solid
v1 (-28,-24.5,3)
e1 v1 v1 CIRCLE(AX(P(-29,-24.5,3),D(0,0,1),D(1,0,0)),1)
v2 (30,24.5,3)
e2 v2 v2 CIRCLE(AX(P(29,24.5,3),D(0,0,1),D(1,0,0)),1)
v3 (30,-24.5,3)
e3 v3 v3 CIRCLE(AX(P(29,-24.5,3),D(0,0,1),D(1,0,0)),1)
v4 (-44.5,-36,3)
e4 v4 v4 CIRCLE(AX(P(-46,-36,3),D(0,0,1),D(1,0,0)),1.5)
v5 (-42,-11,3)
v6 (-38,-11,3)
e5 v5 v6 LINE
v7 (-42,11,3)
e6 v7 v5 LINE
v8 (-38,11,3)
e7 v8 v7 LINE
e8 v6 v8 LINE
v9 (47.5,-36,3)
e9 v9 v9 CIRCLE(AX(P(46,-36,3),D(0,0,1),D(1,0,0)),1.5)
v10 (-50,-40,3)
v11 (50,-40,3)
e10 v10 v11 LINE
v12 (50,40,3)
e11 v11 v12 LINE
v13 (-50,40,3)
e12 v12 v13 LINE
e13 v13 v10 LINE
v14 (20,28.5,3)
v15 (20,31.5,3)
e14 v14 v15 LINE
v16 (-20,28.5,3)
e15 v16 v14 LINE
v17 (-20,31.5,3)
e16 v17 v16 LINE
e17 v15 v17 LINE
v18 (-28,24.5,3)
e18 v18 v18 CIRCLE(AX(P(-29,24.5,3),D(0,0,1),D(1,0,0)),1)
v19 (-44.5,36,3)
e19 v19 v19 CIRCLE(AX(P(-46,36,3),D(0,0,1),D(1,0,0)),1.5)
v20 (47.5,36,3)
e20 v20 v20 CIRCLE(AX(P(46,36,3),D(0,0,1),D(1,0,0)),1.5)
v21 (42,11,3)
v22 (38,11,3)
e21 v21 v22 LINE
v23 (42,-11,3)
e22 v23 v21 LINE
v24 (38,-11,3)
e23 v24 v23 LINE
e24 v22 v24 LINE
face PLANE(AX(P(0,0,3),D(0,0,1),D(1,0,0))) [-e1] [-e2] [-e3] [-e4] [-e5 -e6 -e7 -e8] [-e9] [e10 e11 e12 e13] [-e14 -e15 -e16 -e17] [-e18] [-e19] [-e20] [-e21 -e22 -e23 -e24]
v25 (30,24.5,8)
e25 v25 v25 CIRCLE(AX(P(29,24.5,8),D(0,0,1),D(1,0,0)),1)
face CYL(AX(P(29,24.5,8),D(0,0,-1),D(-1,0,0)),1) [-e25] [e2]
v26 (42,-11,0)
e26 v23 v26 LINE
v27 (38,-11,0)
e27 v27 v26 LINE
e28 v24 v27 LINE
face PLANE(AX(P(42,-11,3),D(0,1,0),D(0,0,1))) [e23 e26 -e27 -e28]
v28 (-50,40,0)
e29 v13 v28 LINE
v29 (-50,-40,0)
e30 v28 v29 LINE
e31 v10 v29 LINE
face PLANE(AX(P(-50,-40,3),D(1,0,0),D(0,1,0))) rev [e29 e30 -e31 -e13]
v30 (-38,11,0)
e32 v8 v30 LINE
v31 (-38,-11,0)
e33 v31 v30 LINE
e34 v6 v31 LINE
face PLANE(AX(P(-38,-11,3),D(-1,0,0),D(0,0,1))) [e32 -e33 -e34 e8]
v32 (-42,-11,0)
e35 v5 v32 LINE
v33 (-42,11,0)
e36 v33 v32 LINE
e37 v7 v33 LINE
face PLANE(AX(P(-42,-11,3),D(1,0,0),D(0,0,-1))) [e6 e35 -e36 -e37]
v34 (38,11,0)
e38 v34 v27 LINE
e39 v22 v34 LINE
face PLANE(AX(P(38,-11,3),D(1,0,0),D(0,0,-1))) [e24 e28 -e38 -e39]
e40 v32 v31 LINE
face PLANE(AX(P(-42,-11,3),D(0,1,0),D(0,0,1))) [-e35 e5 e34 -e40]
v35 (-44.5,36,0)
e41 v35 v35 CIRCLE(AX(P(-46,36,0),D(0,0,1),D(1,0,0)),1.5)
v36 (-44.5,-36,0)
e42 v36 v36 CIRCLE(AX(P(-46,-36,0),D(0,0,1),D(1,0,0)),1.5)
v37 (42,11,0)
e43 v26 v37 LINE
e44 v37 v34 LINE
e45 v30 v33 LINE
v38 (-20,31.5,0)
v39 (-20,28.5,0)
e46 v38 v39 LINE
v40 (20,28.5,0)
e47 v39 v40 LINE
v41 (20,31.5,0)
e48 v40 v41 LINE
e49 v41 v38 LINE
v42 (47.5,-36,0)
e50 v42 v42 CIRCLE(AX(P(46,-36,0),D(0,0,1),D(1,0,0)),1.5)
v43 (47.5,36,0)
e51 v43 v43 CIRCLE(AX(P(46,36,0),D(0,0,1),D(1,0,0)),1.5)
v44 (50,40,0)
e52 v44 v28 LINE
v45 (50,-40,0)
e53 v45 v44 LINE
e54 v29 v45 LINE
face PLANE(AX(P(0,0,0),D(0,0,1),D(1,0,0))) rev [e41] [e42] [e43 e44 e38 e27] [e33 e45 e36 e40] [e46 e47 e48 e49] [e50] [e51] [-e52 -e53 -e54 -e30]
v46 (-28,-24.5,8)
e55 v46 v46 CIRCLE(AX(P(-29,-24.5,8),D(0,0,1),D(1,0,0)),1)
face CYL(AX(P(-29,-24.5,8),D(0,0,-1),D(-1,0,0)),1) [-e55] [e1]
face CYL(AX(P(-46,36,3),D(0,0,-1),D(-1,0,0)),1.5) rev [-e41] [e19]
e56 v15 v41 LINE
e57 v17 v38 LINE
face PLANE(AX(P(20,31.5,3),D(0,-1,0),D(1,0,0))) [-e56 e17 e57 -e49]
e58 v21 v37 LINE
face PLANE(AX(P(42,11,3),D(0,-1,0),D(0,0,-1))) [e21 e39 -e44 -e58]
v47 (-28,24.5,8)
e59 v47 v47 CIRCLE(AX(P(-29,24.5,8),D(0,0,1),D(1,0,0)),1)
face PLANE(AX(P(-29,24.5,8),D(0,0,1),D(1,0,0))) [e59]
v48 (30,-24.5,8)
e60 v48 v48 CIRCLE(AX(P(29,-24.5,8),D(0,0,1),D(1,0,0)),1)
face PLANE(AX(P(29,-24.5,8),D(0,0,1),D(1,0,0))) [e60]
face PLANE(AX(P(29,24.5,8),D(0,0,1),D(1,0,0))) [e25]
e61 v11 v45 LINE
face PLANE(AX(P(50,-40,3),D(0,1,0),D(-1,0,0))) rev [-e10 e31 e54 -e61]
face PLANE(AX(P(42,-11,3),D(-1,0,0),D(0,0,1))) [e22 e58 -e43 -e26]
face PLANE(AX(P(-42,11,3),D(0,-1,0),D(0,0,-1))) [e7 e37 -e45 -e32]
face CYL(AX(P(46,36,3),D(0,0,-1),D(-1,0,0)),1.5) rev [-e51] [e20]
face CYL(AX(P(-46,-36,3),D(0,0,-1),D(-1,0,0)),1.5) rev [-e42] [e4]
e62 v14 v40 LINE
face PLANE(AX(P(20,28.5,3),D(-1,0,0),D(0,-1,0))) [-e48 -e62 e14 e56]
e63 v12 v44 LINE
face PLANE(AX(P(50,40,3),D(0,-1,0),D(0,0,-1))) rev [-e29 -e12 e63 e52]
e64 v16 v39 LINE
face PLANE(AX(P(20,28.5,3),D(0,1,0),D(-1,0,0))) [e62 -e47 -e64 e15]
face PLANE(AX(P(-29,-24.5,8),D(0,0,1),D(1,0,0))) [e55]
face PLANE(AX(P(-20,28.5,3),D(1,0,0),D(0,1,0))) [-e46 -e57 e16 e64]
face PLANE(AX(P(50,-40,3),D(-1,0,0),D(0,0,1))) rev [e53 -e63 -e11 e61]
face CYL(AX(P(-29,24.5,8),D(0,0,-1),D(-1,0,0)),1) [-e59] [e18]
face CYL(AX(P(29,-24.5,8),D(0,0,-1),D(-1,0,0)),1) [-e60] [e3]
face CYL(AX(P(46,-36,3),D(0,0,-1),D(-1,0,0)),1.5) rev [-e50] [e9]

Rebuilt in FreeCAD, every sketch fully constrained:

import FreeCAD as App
import Part
import Sketcher
from FreeCAD import Vector

doc = App.newDocument("Part")
params = doc.addObject("Spreadsheet::Sheet", "Params")
for row, (alias, value) in enumerate([
    ("sketch1_diameter", "3 mm"),
    ("sketch1_width", "100 mm"),
    ("sketch1_width2", "4 mm"),
    ("sketch1_width3", "40 mm"),
    ("sketch1_height", "80 mm"),
    ("pad1_length", "3 mm"),
    ("sketch2_diameter", "2 mm"),
    ("pad2_length", "5 mm"),
], start=1):
    params.set(f"A{row}", alias)
    params.set(f"B{row}", "=" + value)
    params.setAlias(f"B{row}", alias)

body = doc.addObject("PartDesign::Body", "Body")

sketch1 = body.newObject("Sketcher::SketchObject", "Sketch")
sketch1.AttachmentSupport = (doc.getObject("XY_Plane"), [""])
sketch1.MapMode = "FlatFace"
sketch1.addGeometry(Part.LineSegment(Vector(-50, 40, 0), Vector(-50, -40, 0)), False)
sketch1.addGeometry(Part.LineSegment(Vector(-50, -40, 0), Vector(50, -40, 0)), False)
sketch1.addGeometry(Part.LineSegment(Vector(50, -40, 0), Vector(50, 40, 0)), False)
sketch1.addGeometry(Part.LineSegment(Vector(50, 40, 0), Vector(-50, 40, 0)), False)
sketch1.addGeometry(Part.Circle(Vector(-46, -36, 0), Vector(0, 0, 1), 1.5), False)
sketch1.addGeometry(Part.Circle(Vector(46, -36, 0), Vector(0, 0, 1), 1.5), False)
sketch1.addGeometry(Part.LineSegment(Vector(-38, -11, 0), Vector(-42, -11, 0)), False)
sketch1.addGeometry(Part.LineSegment(Vector(-42, -11, 0), Vector(-42, 11, 0)), False)
sketch1.addGeometry(Part.LineSegment(Vector(-42, 11, 0), Vector(-38, 11, 0)), False)
sketch1.addGeometry(Part.LineSegment(Vector(-38, 11, 0), Vector(-38, -11, 0)), False)
sketch1.addGeometry(Part.Circle(Vector(-46, 36, 0), Vector(0, 0, 1), 1.5), False)
sketch1.addGeometry(Part.LineSegment(Vector(42, -11, 0), Vector(38, -11, 0)), False)
sketch1.addGeometry(Part.LineSegment(Vector(38, -11, 0), Vector(38, 11, 0)), False)
sketch1.addGeometry(Part.LineSegment(Vector(38, 11, 0), Vector(42, 11, 0)), False)
sketch1.addGeometry(Part.LineSegment(Vector(42, 11, 0), Vector(42, -11, 0)), False)
sketch1.addGeometry(Part.LineSegment(Vector(20, 28.5, 0), Vector(-20, 28.5, 0)), False)
sketch1.addGeometry(Part.LineSegment(Vector(-20, 28.5, 0), Vector(-20, 31.5, 0)), False)
sketch1.addGeometry(Part.LineSegment(Vector(-20, 31.5, 0), Vector(20, 31.5, 0)), False)
sketch1.addGeometry(Part.LineSegment(Vector(20, 31.5, 0), Vector(20, 28.5, 0)), False)
sketch1.addGeometry(Part.Circle(Vector(46, 36, 0), Vector(0, 0, 1), 1.5), False)
sketch1.addConstraint(Sketcher.Constraint("Coincident", 0, 2, 1, 1))
sketch1.addConstraint(Sketcher.Constraint("Coincident", 1, 2, 2, 1))
sketch1.addConstraint(Sketcher.Constraint("Coincident", 2, 2, 3, 1))
sketch1.addConstraint(Sketcher.Constraint("Coincident", 3, 2, 0, 1))
sketch1.addConstraint(Sketcher.Constraint("Coincident", 6, 2, 7, 1))
sketch1.addConstraint(Sketcher.Constraint("Coincident", 7, 2, 8, 1))
sketch1.addConstraint(Sketcher.Constraint("Coincident", 8, 2, 9, 1))
sketch1.addConstraint(Sketcher.Constraint("Coincident", 9, 2, 6, 1))
sketch1.addConstraint(Sketcher.Constraint("Coincident", 11, 2, 12, 1))
sketch1.addConstraint(Sketcher.Constraint("Coincident", 12, 2, 13, 1))
sketch1.addConstraint(Sketcher.Constraint("Coincident", 13, 2, 14, 1))
sketch1.addConstraint(Sketcher.Constraint("Coincident", 14, 2, 11, 1))
sketch1.addConstraint(Sketcher.Constraint("Coincident", 15, 2, 16, 1))
sketch1.addConstraint(Sketcher.Constraint("Coincident", 16, 2, 17, 1))
sketch1.addConstraint(Sketcher.Constraint("Coincident", 17, 2, 18, 1))
sketch1.addConstraint(Sketcher.Constraint("Coincident", 18, 2, 15, 1))
sketch1.addConstraint(Sketcher.Constraint("Vertical", 0))
sketch1.addConstraint(Sketcher.Constraint("Horizontal", 1))
sketch1.addConstraint(Sketcher.Constraint("Vertical", 2))
sketch1.addConstraint(Sketcher.Constraint("Horizontal", 3))
sketch1.addConstraint(Sketcher.Constraint("Horizontal", 6))
sketch1.addConstraint(Sketcher.Constraint("Vertical", 7))
sketch1.addConstraint(Sketcher.Constraint("Horizontal", 8))
sketch1.addConstraint(Sketcher.Constraint("Vertical", 9))
sketch1.addConstraint(Sketcher.Constraint("Horizontal", 11))
sketch1.addConstraint(Sketcher.Constraint("Vertical", 12))
sketch1.addConstraint(Sketcher.Constraint("Horizontal", 13))
sketch1.addConstraint(Sketcher.Constraint("Vertical", 14))
sketch1.addConstraint(Sketcher.Constraint("Horizontal", 15))
sketch1.addConstraint(Sketcher.Constraint("Vertical", 16))
sketch1.addConstraint(Sketcher.Constraint("Horizontal", 17))
sketch1.addConstraint(Sketcher.Constraint("Vertical", 18))
sketch1.addConstraint(Sketcher.Constraint("Equal", 4, 5))
sketch1.addConstraint(Sketcher.Constraint("Equal", 5, 10))
sketch1.addConstraint(Sketcher.Constraint("Equal", 10, 19))
sketch1.addConstraint(Sketcher.Constraint("Symmetric", 5, 3, 10, 3, -1, 1))
sketch1.addConstraint(Sketcher.Constraint("Symmetric", 4, 3, 19, 3, -1, 1))
sketch1.addConstraint(Sketcher.Constraint("Symmetric", 0, 2, 2, 2, -1, 1))
sketch1.addConstraint(Sketcher.Constraint("Symmetric", 8, 2, 11, 2, -1, 1))
sketch1.addConstraint(Sketcher.Constraint("Symmetric", 6, 2, 13, 2, -1, 1))
sketch1.addConstraint(Sketcher.Constraint("Symmetric", 4, 3, 5, 3, -2))
sketch1.addConstraint(Sketcher.Constraint("Horizontal", 9, 2, 11, 2))
sketch1.addConstraint(Sketcher.Constraint("Diameter", 4, 3.0))
sketch1.addConstraint(Sketcher.Constraint("DistanceX", 1, 1, 1, 2, 100.0))
sketch1.addConstraint(Sketcher.Constraint("DistanceX", 6, 2, 6, 1, 4.0))
sketch1.addConstraint(Sketcher.Constraint("DistanceX", 15, 2, 15, 1, 40.0))
sketch1.addConstraint(Sketcher.Constraint("DistanceY", 0, 2, 0, 1, 80.0))
sketch1.addConstraint(Sketcher.Constraint("DistanceY", 7, 1, 7, 2, 22.0))
sketch1.addConstraint(Sketcher.Constraint("DistanceY", 16, 1, 16, 2, 3.0))
sketch1.addConstraint(Sketcher.Constraint("DistanceX", 4, 3, -1, 1, 46.0))
sketch1.addConstraint(Sketcher.Constraint("DistanceY", 4, 3, -1, 1, 36.0))
sketch1.addConstraint(Sketcher.Constraint("DistanceX", 6, 2, -1, 1, 42.0))
sketch1.addConstraint(Sketcher.Constraint("DistanceX", 15, 2, -1, 1, 20.0))
sketch1.addConstraint(Sketcher.Constraint("DistanceY", -1, 1, 15, 2, 28.5))
sketch1.setExpression("Constraints[42]", "Params.sketch1_diameter")
sketch1.setExpression("Constraints[43]", "Params.sketch1_width")
sketch1.setExpression("Constraints[44]", "Params.sketch1_width2")
sketch1.setExpression("Constraints[45]", "Params.sketch1_width3")
sketch1.setExpression("Constraints[46]", "Params.sketch1_height")
pad1 = body.newObject("PartDesign::Pad", "Pad")
pad1.Profile = sketch1
pad1.setExpression("Length", "Params.pad1_length")

sketch2 = body.newObject("Sketcher::SketchObject", "Sketch001")
sketch2.AttachmentSupport = (doc.getObject("XY_Plane"), [""])
sketch2.MapMode = "FlatFace"
sketch2.AttachmentOffset = App.Placement(Vector(0, 0, 3), App.Rotation())
sketch2.addGeometry(Part.Circle(Vector(-29, 24.5, 0), Vector(0, 0, 1), 1), False)
sketch2.addGeometry(Part.Circle(Vector(29, 24.5, 0), Vector(0, 0, 1), 1), False)
sketch2.addGeometry(Part.Circle(Vector(29, -24.5, 0), Vector(0, 0, 1), 1), False)
sketch2.addGeometry(Part.Circle(Vector(-29, -24.5, 0), Vector(0, 0, 1), 1), False)
sketch2.addConstraint(Sketcher.Constraint("Equal", 0, 1))
sketch2.addConstraint(Sketcher.Constraint("Equal", 1, 2))
sketch2.addConstraint(Sketcher.Constraint("Equal", 2, 3))
sketch2.addConstraint(Sketcher.Constraint("Symmetric", 0, 3, 2, 3, -1, 1))
sketch2.addConstraint(Sketcher.Constraint("Symmetric", 1, 3, 3, 3, -1, 1))
sketch2.addConstraint(Sketcher.Constraint("Symmetric", 0, 3, 1, 3, -2))
sketch2.addConstraint(Sketcher.Constraint("Diameter", 0, 2.0))
sketch2.addConstraint(Sketcher.Constraint("DistanceX", 0, 3, -1, 1, 29.0))
sketch2.addConstraint(Sketcher.Constraint("DistanceY", 2, 3, 1, 3, 49.0))
sketch2.setExpression("Constraints[6]", "Params.sketch2_diameter")
pad2 = body.newObject("PartDesign::Pad", "Pad001")
pad2.Profile = sketch2
pad2.setExpression("Length", "Params.pad2_length")

doc.recompute()
